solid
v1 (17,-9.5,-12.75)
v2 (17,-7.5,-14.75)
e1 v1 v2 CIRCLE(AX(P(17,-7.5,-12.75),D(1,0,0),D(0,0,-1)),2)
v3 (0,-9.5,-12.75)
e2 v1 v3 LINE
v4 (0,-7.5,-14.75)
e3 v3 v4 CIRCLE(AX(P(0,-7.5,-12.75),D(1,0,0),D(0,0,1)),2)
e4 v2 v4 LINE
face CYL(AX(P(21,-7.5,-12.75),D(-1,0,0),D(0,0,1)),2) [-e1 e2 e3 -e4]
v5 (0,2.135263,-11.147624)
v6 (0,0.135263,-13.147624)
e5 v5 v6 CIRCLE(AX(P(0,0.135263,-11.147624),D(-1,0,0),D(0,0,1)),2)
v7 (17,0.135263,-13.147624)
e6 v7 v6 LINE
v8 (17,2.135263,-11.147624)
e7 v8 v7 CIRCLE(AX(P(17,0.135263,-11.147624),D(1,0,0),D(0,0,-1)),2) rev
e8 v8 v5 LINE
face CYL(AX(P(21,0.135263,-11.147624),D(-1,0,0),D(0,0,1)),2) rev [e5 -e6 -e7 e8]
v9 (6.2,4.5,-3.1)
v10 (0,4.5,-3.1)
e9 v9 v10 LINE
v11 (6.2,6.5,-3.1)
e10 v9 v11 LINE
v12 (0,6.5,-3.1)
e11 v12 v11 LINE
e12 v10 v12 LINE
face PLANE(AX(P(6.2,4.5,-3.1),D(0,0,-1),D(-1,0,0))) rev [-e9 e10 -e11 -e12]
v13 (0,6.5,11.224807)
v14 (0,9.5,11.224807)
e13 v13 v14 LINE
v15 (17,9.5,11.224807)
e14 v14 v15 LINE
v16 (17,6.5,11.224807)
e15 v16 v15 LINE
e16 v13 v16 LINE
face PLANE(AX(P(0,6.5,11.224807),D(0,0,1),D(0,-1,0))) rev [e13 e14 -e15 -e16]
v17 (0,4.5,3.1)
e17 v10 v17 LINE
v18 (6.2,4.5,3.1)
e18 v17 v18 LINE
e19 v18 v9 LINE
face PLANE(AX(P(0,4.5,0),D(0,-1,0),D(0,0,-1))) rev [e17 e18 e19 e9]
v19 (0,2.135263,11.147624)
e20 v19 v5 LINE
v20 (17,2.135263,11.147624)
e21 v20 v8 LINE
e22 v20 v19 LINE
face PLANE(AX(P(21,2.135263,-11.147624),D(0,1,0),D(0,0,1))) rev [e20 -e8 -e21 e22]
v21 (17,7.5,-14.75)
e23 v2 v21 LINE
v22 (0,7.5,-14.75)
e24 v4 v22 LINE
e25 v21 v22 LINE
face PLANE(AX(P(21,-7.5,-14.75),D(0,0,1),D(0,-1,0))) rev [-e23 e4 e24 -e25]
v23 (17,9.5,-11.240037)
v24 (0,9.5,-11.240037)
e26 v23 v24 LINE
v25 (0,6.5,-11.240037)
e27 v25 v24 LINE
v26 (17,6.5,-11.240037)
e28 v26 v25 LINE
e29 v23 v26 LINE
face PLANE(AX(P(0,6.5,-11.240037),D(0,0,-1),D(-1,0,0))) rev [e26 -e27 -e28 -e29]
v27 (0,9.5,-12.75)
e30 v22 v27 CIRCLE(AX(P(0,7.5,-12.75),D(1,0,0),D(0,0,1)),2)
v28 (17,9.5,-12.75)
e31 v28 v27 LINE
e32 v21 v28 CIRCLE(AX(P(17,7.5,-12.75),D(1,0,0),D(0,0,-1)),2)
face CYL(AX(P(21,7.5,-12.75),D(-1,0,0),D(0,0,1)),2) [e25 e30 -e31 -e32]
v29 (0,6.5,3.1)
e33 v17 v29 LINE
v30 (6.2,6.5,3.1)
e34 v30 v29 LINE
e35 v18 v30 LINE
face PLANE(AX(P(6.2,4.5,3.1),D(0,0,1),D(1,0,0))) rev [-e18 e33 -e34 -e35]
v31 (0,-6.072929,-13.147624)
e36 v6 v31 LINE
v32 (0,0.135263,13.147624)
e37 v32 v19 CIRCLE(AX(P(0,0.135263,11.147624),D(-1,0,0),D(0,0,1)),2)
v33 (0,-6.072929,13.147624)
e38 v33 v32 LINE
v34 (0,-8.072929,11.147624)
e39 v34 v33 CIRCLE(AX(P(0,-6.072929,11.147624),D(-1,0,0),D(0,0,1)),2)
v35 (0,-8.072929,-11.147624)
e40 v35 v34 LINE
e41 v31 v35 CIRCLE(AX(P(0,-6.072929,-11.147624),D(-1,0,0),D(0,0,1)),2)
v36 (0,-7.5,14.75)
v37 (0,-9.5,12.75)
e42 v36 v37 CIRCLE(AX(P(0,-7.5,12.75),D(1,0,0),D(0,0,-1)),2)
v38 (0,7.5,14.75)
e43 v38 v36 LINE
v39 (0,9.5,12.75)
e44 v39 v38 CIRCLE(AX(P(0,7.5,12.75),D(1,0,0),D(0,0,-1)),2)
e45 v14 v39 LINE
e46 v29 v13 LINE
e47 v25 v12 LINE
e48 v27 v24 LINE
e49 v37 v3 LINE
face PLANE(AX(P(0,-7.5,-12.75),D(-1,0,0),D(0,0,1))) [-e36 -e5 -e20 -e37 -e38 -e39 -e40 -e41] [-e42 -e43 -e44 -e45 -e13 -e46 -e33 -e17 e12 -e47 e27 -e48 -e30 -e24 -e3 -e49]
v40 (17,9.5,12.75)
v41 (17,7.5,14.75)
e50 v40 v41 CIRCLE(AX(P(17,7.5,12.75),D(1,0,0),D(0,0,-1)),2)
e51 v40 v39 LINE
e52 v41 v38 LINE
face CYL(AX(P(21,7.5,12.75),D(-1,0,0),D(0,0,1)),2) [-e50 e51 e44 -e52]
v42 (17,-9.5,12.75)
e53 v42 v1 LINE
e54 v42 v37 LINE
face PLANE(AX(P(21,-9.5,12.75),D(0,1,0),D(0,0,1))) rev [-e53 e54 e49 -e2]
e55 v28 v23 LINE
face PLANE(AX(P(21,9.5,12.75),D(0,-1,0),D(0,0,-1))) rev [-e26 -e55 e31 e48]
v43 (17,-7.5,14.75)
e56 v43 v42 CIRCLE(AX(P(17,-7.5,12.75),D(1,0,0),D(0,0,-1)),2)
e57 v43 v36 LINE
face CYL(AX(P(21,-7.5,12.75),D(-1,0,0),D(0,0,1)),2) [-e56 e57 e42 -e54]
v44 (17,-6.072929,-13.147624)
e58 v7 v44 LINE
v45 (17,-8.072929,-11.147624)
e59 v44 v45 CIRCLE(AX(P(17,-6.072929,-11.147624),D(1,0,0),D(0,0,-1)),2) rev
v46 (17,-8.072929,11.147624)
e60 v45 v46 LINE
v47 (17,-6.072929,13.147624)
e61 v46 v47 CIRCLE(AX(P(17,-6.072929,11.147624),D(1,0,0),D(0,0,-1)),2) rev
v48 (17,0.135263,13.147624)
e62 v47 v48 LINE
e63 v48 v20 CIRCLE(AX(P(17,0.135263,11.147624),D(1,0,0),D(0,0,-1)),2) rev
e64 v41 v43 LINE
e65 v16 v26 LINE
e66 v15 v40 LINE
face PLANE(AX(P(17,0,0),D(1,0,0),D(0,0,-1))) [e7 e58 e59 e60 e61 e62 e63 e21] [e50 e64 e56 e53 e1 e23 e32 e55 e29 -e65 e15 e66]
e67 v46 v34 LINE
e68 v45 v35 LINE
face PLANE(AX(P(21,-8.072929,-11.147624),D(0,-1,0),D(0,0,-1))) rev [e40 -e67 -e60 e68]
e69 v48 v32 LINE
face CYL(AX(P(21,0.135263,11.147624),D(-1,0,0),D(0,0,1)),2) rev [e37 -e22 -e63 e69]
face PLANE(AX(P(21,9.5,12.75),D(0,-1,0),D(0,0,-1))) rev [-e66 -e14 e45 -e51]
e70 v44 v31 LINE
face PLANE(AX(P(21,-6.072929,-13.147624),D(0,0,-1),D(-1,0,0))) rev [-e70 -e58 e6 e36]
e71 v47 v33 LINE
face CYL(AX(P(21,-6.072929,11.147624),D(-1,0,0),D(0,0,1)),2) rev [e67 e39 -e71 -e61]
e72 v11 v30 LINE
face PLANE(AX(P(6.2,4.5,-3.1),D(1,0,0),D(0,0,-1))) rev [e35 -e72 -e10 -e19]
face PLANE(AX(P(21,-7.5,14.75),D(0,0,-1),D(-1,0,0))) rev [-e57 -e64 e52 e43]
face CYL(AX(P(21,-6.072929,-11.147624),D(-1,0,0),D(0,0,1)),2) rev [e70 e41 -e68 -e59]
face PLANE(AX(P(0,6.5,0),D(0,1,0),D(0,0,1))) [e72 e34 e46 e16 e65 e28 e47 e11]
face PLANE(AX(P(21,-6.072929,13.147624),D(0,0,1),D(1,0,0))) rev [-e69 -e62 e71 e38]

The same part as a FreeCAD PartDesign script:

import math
import FreeCAD as App
import Part
import Sketcher

V = App.Vector

doc = App.newDocument("Part")
params = doc.addObject("Spreadsheet::Sheet", "Params")
for row, (alias, value) in enumerate([
    ("sketch1_radius", "2 mm"),
    ("sketch1_width", "15 mm"),
    ("sketch1_height", "25.5 mm"),
    ("pad1_length", "21 mm"),
    ("sketch2_width", "6.2 mm"),
    ("pocket1_length", "5 mm"),
    ("sketch3_radius", "2 mm"),
    ("pocket3_length", "3 mm"),
    ("pocket4_length", "4 mm"),
], start=1):
    params.set(f"A{row}", alias)
    params.set(f"B{row}", "=" + value)
    params.setAlias(f"B{row}", alias)

body = doc.addObject("PartDesign::Body", "Body")

sketch1 = body.newObject("Sketcher::SketchObject", "Sketch")
sketch1.AttachmentSupport = (doc.getObject("YZ_Plane"), [""])
sketch1.MapMode = "FlatFace"
sketch1.addGeometry([
    Part.LineSegment(V(-9.5, 12.75, 0), V(-9.5, -12.75, 0)),
    Part.ArcOfCircle(Part.Circle(V(-7.5, -12.75, 0), V(0, 0, 1), 2), math.radians(-180), math.radians(-90)),
    Part.LineSegment(V(-7.5, -14.75, 0), V(7.5, -14.75, 0)),
    Part.ArcOfCircle(Part.Circle(V(7.5, -12.75, 0), V(0, 0, 1), 2), math.radians(-90), math.radians(0)),
    Part.LineSegment(V(9.5, -12.75, 0), V(9.5, 12.75, 0)),
    Part.ArcOfCircle(Part.Circle(V(7.5, 12.75, 0), V(0, 0, 1), 2), math.radians(0), math.radians(90)),
    Part.LineSegment(V(7.5, 14.75, 0), V(-7.5, 14.75, 0)),
    Part.ArcOfCircle(Part.Circle(V(-7.5, 12.75, 0), V(0, 0, 1), 2), math.radians(90), math.radians(180)),
], False)
sketch1.addConstraint([
    Sketcher.Constraint("Tangent", 0, 2, 1, 1),
    Sketcher.Constraint("Tangent", 1, 2, 2, 1),
    Sketcher.Constraint("Tangent", 2, 2, 3, 1),
    Sketcher.Constraint("Tangent", 3, 2, 4, 1),
    Sketcher.Constraint("Tangent", 4, 2, 5, 1),
    Sketcher.Constraint("Tangent", 5, 2, 6, 1),
    Sketcher.Constraint("Tangent", 6, 2, 7, 1),
    Sketcher.Constraint("Tangent", 7, 2, 0, 1),
    Sketcher.Constraint("Vertical", 0),
    Sketcher.Constraint("Horizontal", 2),
    Sketcher.Constraint("Vertical", 4),
    Sketcher.Constraint("Horizontal", 6),
    Sketcher.Constraint("Equal", 1, 3),
    Sketcher.Constraint("Equal", 3, 5),
    Sketcher.Constraint("Equal", 5, 7),
    Sketcher.Constraint("Symmetric", 1, 3, 5, 3, -1, 1),
    Sketcher.Constraint("Radius", 1, 2.0),
    Sketcher.Constraint("DistanceX", 2, 1, 2, 2, 15.0),
    Sketcher.Constraint("DistanceY", 0, 2, 0, 1, 25.5),
])
sketch1.setExpression("Constraints[16]", "Params.sketch1_radius")
sketch1.setExpression("Constraints[17]", "Params.sketch1_width")
sketch1.setExpression("Constraints[18]", "Params.sketch1_height")
pad1 = body.newObject("PartDesign::Pad", "Pad")
pad1.Profile = sketch1
pad1.setExpression("Length", "Params.pad1_length")

sketch2 = body.newObject("Sketcher::SketchObject", "Sketch001")
sketch2.AttachmentSupport = (doc.getObject("XZ_Plane"), [""])
sketch2.MapMode = "FlatFace"
sketch2.AttachmentOffset = App.Placement(V(0, 0, -9.5), App.Rotation())
sketch2.addGeometry([
    Part.LineSegment(V(0, -3.1, 0), V(0, 3.1, 0)),
    Part.LineSegment(V(0, 3.1, 0), V(6.2, 3.1, 0)),
    Part.LineSegment(V(6.2, 3.1, 0), V(6.2, -3.1, 0)),
    Part.LineSegment(V(6.2, -3.1, 0), V(0, -3.1, 0)),
], False)
sketch2.addConstraint([
    Sketcher.Constraint("Coincident", 0, 2, 1, 1),
    Sketcher.Constraint("Coincident", 1, 2, 2, 1),
    Sketcher.Constraint("Coincident", 2, 2, 3, 1),
    Sketcher.Constraint("Coincident", 3, 2, 0, 1),
    Sketcher.Constraint("Vertical", 0),
    Sketcher.Constraint("Horizontal", 1),
    Sketcher.Constraint("Vertical", 2),
    Sketcher.Constraint("Horizontal", 3),
    Sketcher.Constraint("Symmetric", 0, 2, 3, 2, -1, 1),
    Sketcher.Constraint("Equal", 3, 0),
    Sketcher.Constraint("DistanceX", 1, 1, 1, 2, 6.2),
])
sketch2.setExpression("Constraints[10]", "Params.sketch2_width")
pocket1 = body.newObject("PartDesign::Pocket", "Pocket")
pocket1.Profile = sketch2
pocket1.setExpression("Length", "Params.pocket1_length")
pocket1.Reversed = True

sketch3 = body.newObject("Sketcher::SketchObject", "Sketch002")
sketch3.AttachmentSupport = (doc.getObject("YZ_Plane"), [""])
sketch3.MapMode = "FlatFace"
sketch3.addGeometry([
    Part.LineSegment(V(-8.072929, -11.147624, 0), V(-8.072929, 11.147624, 0)),
    Part.ArcOfCircle(Part.Circle(V(-6.072929, 11.147624, 0), V(0, 0, 1), 2), math.radians(90), math.radians(180)),
    Part.LineSegment(V(-6.072929, 13.147624, 0), V(0.135263, 13.147624, 0)),
    Part.ArcOfCircle(Part.Circle(V(0.135263, 11.147624, 0), V(0, 0, 1), 2), math.radians(0), math.radians(90)),
    Part.LineSegment(V(2.135263, 11.147624, 0), V(2.135263, -11.147624, 0)),
    Part.ArcOfCircle(Part.Circle(V(0.135263, -11.147624, 0), V(0, 0, 1), 2), math.radians(-90), math.radians(0)),
    Part.LineSegment(V(0.135263, -13.147624, 0), V(-6.072929, -13.147624, 0)),
    Part.ArcOfCircle(Part.Circle(V(-6.072929, -11.147624, 0), V(0, 0, 1), 2), math.radians(-180), math.radians(-90)),
], False)
sketch3.addConstraint([
    Sketcher.Constraint("Tangent", 0, 2, 1, 2),
    Sketcher.Constraint("Tangent", 1, 1, 2, 1),
    Sketcher.Constraint("Tangent", 2, 2, 3, 2),
    Sketcher.Constraint("Tangent", 3, 1, 4, 1),
    Sketcher.Constraint("Tangent", 4, 2, 5, 2),
    Sketcher.Constraint("Tangent", 5, 1, 6, 1),
    Sketcher.Constraint("Tangent", 6, 2, 7, 2),
    Sketcher.Constraint("Tangent", 7, 1, 0, 1),
    Sketcher.Constraint("Vertical", 0),
    Sketcher.Constraint("Horizontal", 2),
    Sketcher.Constraint("Vertical", 4),
    Sketcher.Constraint("Horizontal", 6),
    Sketcher.Constraint("Equal", 1, 3),
    Sketcher.Constraint("Equal", 3, 5),
    Sketcher.Constraint("Equal", 5, 7),
    Sketcher.Constraint("Radius", 1, 2.0),
    Sketcher.Constraint("DistanceX", 2, 1, 2, 2, 6.208192),
    Sketcher.Constraint("DistanceY", 0, 1, 0, 2, 22.295247),
    Sketcher.Constraint("DistanceX", 1, 3, -1, 1, 6.072929),
    Sketcher.Constraint("DistanceY", -1, 1, 1, 3, 11.147624),
])
sketch3.setExpression("Constraints[15]", "Params.sketch3_radius")
pocket2 = body.newObject("PartDesign::Pocket", "Pocket001")
pocket2.Profile = sketch3
pocket2.Type = "ThroughAll"
pocket2.Midplane = True

sketch4 = body.newObject("Sketcher::SketchObject", "Sketch003")
sketch4.AttachmentSupport = (doc.getObject("XZ_Plane"), [""])
sketch4.MapMode = "FlatFace"
sketch4.AttachmentOffset = App.Placement(V(0, 0, -9.5), App.Rotation())
sketch4.addGeometry([
    Part.LineSegment(V(0, -11.240037, 0), V(0, 11.224807, 0)),
    Part.LineSegment(V(0, 11.224807, 0), V(24.28485, 11.224807, 0)),
    Part.LineSegment(V(24.28485, 11.224807, 0), V(24.28485, -11.240037, 0)),
    Part.LineSegment(V(24.28485, -11.240037, 0), V(0, -11.240037, 0)),
], False)
sketch4.addConstraint([
    Sketcher.Constraint("Coincident", 0, 2, 1, 1),
    Sketcher.Constraint("Coincident", 1, 2, 2, 1),
    Sketcher.Constraint("Coincident", 2, 2, 3, 1),
    Sketcher.Constraint("Coincident", 3, 2, 0, 1),
    Sketcher.Constraint("Vertical", 0),
    Sketcher.Constraint("Horizontal", 1),
    Sketcher.Constraint("Vertical", 2),
    Sketcher.Constraint("Horizontal", 3),
    Sketcher.Constraint("PointOnObject", 0, 2, -2),
    Sketcher.Constraint("DistanceX", 1, 1, 1, 2, 24.28485),
    Sketcher.Constraint("DistanceY", 0, 1, 0, 2, 22.464844),
    Sketcher.Constraint("DistanceY", -1, 1, 0, 2, 11.224807),
])
pocket3 = body.newObject("PartDesign::Pocket", "Pocket002")
pocket3.Profile = sketch4
pocket3.setExpression("Length", "Params.pocket3_length")
pocket3.Reversed = True

sketch5 = body.newObject("Sketcher::SketchObject", "Sketch004")
sketch5.AttachmentSupport = (doc.getObject("YZ_Plane"), [""])
sketch5.MapMode = "FlatFace"
sketch5.AttachmentOffset = App.Placement(V(0, 0, 21), App.Rotation())
sketch5.addGeometry([
    Part.LineSegment(V(11.284458, 15.919146, 0), V(-10.388866, 15.919146, 0)),
    Part.LineSegment(V(-10.388866, 15.919146, 0), V(-10.388866, -15.896756, 0)),
    Part.LineSegment(V(-10.388866, -15.896756, 0), V(11.284458, -15.896756, 0)),
    Part.LineSegment(V(11.284458, -15.896756, 0), V(11.284458, 15.919146, 0)),
], False)
sketch5.addConstraint([
    Sketcher.Constraint("Coincident", 0, 2, 1, 1),
    Sketcher.Constraint("Coincident", 1, 2, 2, 1),
    Sketcher.Constraint("Coincident", 2, 2, 3, 1),
    Sketcher.Constraint("Coincident", 3, 2, 0, 1),
    Sketcher.Constraint("Horizontal", 0),
    Sketcher.Constraint("Vertical", 1),
    Sketcher.Constraint("Horizontal", 2),
    Sketcher.Constraint("Vertical", 3),
    Sketcher.Constraint("DistanceY", 1, 2, 1, 1, 31.815902),
    Sketcher.Constraint("DistanceX", 0, 2, 0, 1, 21.673324),
    Sketcher.Constraint("DistanceX", 0, 2, -1, 1, 10.388866),
    Sketcher.Constraint("DistanceY", -1, 1, 0, 2, 15.919146),
])
pocket4 = body.newObject("PartDesign::Pocket", "Pocket003")
pocket4.Profile = sketch5
pocket4.setExpression("Length", "Params.pocket4_length")

doc.recompute()
